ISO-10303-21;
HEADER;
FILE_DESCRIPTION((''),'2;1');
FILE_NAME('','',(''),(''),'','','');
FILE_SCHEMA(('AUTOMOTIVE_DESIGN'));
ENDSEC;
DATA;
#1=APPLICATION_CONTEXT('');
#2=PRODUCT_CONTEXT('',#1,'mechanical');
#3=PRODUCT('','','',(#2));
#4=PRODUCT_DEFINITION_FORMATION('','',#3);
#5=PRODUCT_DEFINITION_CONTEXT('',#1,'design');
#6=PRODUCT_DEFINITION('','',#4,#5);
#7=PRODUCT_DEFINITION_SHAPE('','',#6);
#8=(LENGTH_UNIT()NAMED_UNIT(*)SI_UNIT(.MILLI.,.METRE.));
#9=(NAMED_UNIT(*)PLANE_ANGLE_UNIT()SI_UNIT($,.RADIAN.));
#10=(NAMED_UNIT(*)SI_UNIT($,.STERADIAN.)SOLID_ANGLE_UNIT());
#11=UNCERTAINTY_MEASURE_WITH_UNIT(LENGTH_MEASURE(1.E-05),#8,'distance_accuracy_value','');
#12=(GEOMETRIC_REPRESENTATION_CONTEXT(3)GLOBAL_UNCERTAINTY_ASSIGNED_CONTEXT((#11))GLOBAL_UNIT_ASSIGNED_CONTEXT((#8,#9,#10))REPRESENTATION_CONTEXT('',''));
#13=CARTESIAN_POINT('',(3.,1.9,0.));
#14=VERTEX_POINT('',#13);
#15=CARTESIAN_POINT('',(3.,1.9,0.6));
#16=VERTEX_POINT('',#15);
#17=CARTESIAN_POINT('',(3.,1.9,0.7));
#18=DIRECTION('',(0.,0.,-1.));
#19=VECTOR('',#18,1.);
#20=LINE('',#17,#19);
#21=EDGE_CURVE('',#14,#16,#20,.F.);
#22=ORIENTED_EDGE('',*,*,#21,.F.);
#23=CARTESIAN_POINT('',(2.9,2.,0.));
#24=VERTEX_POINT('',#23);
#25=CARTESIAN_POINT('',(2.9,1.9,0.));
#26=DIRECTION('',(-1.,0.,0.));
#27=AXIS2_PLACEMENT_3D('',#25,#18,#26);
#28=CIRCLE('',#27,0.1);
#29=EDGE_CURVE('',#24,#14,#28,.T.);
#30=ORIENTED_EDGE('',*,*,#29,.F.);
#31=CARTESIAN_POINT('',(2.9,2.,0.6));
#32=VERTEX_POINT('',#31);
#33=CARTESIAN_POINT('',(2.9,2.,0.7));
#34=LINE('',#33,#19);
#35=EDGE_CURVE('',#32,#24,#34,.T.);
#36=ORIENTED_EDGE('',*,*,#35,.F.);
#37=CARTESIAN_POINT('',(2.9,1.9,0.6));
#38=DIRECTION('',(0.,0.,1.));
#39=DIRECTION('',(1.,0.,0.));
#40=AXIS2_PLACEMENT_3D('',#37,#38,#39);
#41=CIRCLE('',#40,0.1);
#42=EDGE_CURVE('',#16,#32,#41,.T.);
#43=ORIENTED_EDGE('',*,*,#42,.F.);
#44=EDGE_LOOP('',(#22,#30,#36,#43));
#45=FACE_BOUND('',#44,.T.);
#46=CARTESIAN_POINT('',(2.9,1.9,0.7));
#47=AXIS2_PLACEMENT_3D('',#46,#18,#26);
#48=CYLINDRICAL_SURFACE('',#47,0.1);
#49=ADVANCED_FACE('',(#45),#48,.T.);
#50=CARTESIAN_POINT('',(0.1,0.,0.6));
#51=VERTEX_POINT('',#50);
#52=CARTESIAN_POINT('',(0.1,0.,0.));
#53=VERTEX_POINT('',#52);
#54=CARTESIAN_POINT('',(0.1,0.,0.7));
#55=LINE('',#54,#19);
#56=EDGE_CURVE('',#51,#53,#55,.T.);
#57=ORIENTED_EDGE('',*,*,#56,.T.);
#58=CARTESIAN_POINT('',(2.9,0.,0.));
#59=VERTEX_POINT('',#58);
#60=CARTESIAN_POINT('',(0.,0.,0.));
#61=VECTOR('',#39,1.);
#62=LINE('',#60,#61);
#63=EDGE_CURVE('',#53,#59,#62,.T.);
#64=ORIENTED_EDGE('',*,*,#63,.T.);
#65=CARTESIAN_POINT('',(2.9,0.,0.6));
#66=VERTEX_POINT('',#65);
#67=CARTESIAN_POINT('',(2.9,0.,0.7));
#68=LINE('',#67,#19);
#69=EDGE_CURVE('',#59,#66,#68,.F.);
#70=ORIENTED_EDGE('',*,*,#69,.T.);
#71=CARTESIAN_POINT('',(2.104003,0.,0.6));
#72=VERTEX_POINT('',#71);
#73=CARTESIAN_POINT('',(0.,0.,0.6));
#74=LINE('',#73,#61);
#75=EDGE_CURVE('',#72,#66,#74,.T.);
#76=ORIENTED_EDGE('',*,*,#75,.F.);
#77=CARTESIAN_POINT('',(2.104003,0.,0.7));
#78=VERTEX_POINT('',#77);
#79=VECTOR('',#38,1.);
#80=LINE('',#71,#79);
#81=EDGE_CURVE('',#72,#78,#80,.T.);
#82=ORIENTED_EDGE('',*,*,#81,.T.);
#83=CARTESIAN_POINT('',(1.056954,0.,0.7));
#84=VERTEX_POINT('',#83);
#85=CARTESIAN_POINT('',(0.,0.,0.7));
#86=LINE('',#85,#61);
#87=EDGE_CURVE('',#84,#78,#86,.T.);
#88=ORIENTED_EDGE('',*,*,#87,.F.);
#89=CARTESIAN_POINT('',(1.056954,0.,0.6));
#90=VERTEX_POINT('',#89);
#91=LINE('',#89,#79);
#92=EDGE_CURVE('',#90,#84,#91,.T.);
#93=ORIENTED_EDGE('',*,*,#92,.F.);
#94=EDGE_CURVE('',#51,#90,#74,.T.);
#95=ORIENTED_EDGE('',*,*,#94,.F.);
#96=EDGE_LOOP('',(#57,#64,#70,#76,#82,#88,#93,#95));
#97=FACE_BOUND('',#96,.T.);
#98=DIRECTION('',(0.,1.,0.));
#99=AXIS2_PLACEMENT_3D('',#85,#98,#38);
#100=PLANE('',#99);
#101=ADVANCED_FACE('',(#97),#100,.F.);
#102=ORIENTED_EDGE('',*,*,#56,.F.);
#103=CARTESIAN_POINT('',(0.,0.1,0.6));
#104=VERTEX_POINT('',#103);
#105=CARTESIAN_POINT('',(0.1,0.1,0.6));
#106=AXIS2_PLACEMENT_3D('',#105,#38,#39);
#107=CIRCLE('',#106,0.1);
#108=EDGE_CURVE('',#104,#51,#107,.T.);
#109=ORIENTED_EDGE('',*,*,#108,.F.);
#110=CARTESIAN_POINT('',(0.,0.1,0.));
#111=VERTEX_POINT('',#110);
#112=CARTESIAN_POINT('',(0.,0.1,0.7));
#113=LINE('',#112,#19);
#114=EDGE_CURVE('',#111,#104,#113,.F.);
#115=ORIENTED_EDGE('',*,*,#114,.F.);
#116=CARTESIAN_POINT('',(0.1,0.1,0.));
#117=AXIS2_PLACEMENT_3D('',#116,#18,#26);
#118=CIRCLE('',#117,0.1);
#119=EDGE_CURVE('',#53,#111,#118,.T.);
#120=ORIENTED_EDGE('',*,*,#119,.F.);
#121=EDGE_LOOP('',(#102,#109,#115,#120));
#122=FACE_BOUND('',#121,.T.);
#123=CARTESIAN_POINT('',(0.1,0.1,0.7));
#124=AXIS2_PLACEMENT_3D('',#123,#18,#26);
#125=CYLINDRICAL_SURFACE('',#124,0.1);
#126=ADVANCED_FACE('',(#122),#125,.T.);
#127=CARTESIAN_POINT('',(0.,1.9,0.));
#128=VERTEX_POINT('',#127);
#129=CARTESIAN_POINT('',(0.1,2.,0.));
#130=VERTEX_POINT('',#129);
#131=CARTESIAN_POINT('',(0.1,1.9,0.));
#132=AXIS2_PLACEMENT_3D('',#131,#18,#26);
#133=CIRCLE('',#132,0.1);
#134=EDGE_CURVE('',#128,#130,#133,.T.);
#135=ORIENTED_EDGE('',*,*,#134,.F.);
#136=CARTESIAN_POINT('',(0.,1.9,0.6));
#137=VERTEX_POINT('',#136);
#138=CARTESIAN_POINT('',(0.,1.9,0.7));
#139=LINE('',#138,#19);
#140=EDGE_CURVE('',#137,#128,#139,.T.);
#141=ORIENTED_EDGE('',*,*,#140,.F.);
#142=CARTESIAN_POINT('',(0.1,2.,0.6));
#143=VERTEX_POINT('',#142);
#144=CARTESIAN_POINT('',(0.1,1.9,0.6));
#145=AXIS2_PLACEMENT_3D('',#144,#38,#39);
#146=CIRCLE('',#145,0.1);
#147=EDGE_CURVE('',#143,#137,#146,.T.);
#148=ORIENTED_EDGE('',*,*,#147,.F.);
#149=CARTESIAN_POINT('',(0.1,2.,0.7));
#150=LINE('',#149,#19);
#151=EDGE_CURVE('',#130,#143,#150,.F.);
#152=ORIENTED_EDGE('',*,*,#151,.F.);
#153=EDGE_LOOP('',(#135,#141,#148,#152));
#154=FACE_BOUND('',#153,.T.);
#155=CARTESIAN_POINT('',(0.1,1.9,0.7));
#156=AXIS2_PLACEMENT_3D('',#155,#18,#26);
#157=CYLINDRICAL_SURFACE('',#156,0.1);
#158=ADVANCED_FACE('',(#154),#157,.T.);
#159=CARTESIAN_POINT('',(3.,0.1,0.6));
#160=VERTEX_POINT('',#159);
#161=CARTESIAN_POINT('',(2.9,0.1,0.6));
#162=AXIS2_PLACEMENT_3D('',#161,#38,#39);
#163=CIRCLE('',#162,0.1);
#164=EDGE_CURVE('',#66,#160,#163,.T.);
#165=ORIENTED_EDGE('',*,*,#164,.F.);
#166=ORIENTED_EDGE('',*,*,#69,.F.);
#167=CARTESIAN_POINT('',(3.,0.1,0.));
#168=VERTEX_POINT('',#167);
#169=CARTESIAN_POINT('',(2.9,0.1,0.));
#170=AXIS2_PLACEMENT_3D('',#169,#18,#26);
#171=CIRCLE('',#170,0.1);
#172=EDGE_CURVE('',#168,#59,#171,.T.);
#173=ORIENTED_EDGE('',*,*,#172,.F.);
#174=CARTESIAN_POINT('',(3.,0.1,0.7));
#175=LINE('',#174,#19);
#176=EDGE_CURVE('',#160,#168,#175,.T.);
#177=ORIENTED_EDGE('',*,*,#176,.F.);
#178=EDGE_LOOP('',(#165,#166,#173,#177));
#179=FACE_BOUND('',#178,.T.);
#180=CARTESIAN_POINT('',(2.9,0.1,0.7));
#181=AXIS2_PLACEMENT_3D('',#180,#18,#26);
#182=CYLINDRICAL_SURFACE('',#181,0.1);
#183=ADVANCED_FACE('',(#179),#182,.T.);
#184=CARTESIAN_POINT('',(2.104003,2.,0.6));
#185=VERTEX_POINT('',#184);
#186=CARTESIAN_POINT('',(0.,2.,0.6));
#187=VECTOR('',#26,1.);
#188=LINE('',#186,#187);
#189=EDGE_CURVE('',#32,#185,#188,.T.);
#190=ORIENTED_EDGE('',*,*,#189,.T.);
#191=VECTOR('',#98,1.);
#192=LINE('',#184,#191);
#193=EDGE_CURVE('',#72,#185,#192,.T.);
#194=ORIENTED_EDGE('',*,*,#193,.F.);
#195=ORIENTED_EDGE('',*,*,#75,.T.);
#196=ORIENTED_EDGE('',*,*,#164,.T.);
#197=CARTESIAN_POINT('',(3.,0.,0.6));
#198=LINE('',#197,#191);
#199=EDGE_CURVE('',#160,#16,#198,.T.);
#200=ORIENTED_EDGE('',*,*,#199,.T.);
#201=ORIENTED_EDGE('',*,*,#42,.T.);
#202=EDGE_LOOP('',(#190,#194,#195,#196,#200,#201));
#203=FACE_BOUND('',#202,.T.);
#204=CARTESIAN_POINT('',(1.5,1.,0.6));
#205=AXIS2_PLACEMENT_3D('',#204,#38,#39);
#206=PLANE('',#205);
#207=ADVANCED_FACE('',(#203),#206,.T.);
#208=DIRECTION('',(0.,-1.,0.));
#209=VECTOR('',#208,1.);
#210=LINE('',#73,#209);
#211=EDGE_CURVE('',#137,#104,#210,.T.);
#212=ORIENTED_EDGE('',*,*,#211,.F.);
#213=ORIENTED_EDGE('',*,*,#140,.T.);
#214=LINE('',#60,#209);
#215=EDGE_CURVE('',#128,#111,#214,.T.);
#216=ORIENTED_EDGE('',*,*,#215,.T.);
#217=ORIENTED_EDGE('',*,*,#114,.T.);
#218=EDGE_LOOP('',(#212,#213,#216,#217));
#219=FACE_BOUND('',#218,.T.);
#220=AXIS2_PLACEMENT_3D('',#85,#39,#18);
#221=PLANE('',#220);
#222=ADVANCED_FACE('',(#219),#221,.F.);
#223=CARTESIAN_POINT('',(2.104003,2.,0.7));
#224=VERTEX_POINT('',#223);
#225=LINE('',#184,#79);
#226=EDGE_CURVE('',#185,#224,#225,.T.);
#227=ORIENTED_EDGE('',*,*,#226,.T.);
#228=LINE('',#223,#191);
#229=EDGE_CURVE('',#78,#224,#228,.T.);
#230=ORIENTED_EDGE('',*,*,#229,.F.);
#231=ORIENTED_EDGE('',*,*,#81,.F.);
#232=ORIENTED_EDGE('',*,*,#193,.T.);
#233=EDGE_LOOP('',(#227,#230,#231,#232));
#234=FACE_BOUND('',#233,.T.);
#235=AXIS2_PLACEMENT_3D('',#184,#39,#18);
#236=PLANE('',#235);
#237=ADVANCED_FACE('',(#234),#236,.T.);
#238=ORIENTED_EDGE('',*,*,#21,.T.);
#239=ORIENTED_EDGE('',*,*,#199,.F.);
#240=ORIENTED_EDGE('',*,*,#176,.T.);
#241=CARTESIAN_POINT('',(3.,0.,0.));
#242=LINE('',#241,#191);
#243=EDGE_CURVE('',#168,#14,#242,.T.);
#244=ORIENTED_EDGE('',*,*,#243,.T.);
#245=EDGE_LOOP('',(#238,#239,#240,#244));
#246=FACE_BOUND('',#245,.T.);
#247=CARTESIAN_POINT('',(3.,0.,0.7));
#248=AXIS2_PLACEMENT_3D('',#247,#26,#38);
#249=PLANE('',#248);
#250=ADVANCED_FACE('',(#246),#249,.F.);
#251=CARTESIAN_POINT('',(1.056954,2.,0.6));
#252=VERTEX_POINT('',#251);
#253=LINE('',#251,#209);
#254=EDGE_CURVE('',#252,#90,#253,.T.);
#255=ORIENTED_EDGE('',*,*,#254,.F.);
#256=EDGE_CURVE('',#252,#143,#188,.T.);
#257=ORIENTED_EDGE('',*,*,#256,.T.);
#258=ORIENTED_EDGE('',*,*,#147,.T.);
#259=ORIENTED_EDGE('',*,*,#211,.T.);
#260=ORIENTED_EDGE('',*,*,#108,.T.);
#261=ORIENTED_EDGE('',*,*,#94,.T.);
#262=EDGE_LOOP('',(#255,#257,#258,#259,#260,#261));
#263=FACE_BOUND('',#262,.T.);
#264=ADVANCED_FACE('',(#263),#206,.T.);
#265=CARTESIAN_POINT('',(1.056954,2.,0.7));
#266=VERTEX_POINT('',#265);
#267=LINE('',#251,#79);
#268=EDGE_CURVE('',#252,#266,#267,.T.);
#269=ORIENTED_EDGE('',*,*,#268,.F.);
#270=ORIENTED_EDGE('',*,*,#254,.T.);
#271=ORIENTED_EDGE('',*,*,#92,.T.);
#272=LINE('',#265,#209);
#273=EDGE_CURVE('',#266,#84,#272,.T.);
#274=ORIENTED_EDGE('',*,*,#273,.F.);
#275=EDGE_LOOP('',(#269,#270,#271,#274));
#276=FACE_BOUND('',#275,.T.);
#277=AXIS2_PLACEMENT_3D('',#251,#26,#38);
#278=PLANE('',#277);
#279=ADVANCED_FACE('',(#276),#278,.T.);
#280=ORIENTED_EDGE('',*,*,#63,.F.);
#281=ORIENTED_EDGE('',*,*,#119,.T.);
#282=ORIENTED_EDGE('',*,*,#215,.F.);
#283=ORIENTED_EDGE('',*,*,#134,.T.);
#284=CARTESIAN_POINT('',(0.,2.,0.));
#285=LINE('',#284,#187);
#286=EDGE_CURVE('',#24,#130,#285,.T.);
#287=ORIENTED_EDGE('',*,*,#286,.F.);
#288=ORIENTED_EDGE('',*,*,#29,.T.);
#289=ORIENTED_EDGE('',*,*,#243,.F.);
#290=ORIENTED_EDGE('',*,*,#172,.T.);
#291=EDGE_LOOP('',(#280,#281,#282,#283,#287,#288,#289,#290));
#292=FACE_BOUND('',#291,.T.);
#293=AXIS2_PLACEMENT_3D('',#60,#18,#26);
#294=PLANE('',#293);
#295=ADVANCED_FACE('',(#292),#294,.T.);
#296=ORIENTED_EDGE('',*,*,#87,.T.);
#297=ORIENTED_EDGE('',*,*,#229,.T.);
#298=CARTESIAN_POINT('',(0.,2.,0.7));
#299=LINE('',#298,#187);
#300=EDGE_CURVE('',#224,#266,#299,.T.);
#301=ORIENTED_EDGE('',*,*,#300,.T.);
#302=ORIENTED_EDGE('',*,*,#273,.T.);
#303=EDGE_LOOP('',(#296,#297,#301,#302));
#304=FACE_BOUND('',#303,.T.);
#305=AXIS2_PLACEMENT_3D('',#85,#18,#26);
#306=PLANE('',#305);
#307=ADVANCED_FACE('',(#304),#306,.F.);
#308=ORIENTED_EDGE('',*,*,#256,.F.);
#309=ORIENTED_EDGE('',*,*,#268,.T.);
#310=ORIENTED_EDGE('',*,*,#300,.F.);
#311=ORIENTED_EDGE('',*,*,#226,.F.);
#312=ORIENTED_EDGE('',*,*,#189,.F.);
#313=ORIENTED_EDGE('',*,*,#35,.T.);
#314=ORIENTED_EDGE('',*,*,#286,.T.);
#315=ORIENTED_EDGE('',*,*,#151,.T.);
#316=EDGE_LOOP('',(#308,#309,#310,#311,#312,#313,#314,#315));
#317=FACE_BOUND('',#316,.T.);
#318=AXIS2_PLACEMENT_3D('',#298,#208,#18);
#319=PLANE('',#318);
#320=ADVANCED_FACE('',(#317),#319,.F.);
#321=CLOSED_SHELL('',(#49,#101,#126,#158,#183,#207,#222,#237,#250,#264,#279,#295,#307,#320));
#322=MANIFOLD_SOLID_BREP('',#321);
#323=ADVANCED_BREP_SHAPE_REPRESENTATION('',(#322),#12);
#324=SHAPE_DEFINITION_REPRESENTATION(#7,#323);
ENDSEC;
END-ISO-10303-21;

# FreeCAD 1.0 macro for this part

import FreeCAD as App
import Part
import Sketcher

V = App.Vector


def edges_at(feature, points):
    """Names of the edges that pass closest to the given points."""
    edges = feature.Shape.Edges
    near = lambda p: min(range(len(edges)), key=lambda i: edges[i].distToShape(Part.Vertex(*p))[0])
    return sorted({f"Edge{near(p) + 1}" for p in points})


def add_polygon(sketch, points):
    """Adds a closed chain of lines whose ends are joined by coincident constraints."""
    first, n = sketch.GeometryCount, len(points)
    for a, b in zip(points, points[1:] + points[:1]):
        sketch.addGeometry(Part.LineSegment(App.Vector(*a, 0), App.Vector(*b, 0)), False)
    for i in range(n):
        sketch.addConstraint(Sketcher.Constraint("Coincident", first + i, 2, first + (i + 1) % n, 1))

doc = App.newDocument("Part")
body = doc.addObject("PartDesign::Body", "Body")

sketch1 = body.newObject("Sketcher::SketchObject", "Sketch")
sketch1.AttachmentSupport = (doc.getObject("XY_Plane"), [""])
sketch1.MapMode = "FlatFace"
add_polygon(sketch1, [(0, 2), (0, 0), (3, 0), (3, 2)])
sketch1.addConstraint([
    Sketcher.Constraint("Vertical", 0),
    Sketcher.Constraint("Horizontal", 1),
    Sketcher.Constraint("Vertical", 2),
    Sketcher.Constraint("Horizontal", 3),
    Sketcher.Constraint("Coincident", 0, 2, -1, 1),
    Sketcher.Constraint("DistanceX", 1, 1, 1, 2, 3.0),
    Sketcher.Constraint("DistanceY", 0, 2, 0, 1, 2.0),
])
pad1 = body.newObject("PartDesign::Pad", "Pad")
pad1.Profile = sketch1
pad1.Length = 0.7

sketch2 = body.newObject("Sketcher::SketchObject", "Sketch001")
sketch2.AttachmentSupport = (doc.getObject("XY_Plane"), [""])
sketch2.MapMode = "FlatFace"
sketch2.AttachmentOffset = App.Placement(V(0, 0, 0.7), App.Rotation())
add_polygon(sketch2, [(-1.4, 3.4), (-1.4, -1.4), (4.4, -1.4), (4.4, 3.4)])
add_polygon(sketch2, [(2.1, 0), (1.1, 0), (1.1, 2), (2.1, 2)])
sketch2.addConstraint([
    Sketcher.Constraint("Vertical", 0),
    Sketcher.Constraint("Horizontal", 1),
    Sketcher.Constraint("Vertical", 2),
    Sketcher.Constraint("Horizontal", 3),
    Sketcher.Constraint("Horizontal", 4),
    Sketcher.Constraint("Vertical", 5),
    Sketcher.Constraint("Horizontal", 6),
    Sketcher.Constraint("Vertical", 7),
    Sketcher.Constraint("PointOnObject", 4, 2, -1),
    Sketcher.Constraint("DistanceY", 5, 1, 5, 2, 2.0),
    Sketcher.Constraint("DistanceX", 1, 1, 1, 2, 5.734),
    Sketcher.Constraint("DistanceY", 0, 2, 0, 1, 4.734),
    Sketcher.Constraint("DistanceX", 0, 2, -1, 1, 1.367),
    Sketcher.Constraint("DistanceY", 0, 2, -1, 1, 1.367),
    Sketcher.Constraint("DistanceX", 4, 2, 4, 1, 1.047049),
    Sketcher.Constraint("DistanceX", -1, 1, 4, 2, 1.056954),
])
pocket1 = body.newObject("PartDesign::Pocket", "Pocket")
pocket1.Profile = sketch2
pocket1.Length = 0.1
doc.recompute()

fillet = body.newObject("PartDesign::Fillet", "Fillet")
fillet.Base = (pocket1, edges_at(pocket1, [
    (0, 2, 0.3),
    (3, 2, 0.3),
    (3, 0, 0.3),
    (0, 0, 0.3),
]))
fillet.Radius = 0.1

doc.recompute()
